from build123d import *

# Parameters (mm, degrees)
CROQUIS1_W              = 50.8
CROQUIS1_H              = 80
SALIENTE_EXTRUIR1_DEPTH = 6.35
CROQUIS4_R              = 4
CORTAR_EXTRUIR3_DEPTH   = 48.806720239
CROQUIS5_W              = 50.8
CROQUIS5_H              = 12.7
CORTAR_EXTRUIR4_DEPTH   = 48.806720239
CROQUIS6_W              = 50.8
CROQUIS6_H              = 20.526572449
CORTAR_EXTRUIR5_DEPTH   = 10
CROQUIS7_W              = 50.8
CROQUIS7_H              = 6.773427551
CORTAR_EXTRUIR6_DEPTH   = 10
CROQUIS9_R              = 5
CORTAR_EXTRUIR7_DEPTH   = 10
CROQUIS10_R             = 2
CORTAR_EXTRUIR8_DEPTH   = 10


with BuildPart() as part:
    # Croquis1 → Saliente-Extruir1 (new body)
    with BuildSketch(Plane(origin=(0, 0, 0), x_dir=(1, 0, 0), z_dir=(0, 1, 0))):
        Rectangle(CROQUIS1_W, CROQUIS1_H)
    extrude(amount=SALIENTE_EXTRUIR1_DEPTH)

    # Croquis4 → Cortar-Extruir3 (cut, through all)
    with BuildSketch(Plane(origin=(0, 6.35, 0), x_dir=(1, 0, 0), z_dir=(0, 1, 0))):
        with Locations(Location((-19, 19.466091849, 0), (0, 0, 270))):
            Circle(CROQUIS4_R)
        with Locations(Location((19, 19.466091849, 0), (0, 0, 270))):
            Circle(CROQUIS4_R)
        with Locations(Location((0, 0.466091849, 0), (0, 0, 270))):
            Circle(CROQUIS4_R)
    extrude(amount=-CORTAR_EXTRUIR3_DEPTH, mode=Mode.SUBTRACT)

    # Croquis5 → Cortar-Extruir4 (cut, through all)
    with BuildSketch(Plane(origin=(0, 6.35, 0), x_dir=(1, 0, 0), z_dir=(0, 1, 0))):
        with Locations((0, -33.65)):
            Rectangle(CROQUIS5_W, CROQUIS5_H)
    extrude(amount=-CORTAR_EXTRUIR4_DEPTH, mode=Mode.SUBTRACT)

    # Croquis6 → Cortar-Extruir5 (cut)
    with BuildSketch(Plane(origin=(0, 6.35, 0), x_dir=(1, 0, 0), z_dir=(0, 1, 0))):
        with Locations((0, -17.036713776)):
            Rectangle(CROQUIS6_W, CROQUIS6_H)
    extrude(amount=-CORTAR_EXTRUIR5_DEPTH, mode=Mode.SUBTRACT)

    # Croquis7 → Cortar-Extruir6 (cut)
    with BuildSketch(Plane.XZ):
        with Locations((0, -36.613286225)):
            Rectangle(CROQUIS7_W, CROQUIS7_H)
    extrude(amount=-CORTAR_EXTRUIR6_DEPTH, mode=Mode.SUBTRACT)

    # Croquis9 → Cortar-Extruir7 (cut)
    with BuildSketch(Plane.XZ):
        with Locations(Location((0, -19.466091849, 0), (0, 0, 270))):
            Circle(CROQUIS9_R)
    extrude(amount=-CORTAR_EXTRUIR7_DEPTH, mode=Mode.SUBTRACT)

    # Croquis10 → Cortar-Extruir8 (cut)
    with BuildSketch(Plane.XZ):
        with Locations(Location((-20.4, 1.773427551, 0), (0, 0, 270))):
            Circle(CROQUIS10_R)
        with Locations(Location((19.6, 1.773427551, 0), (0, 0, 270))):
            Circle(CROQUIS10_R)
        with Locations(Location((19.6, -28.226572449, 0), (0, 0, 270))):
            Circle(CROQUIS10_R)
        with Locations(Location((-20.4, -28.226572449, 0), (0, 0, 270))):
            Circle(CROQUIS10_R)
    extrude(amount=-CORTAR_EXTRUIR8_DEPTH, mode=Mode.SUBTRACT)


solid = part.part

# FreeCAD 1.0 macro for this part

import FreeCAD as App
import Part
import Sketcher
Q = App.Units.Quantity

doc = App.newDocument("Part")
body = doc.addObject("PartDesign::Body", "Body")

# Sketch on XZ plane
sketch1 = doc.addObject("Sketcher::SketchObject", "Sketch")
body.addObject(sketch1)
sketch1.AttachmentSupport = (doc.XZ_Plane, [""])
sketch1.MapMode = "FlatFace"
sketch1.addGeometry(Part.LineSegment(App.Vector(-25, -40, 0), App.Vector(-25, 40, 0)), False)
sketch1.addGeometry(Part.LineSegment(App.Vector(-25, 40, 0), App.Vector(25, 40, 0)), False)
sketch1.addGeometry(Part.LineSegment(App.Vector(25, 40, 0), App.Vector(25, -40, 0)), False)
sketch1.addGeometry(Part.LineSegment(App.Vector(25, -40, 0), App.Vector(-25, -40, 0)), False)
sketch1.addConstraint(Sketcher.Constraint("Coincident", 0, 2, 1, 1))
sketch1.addConstraint(Sketcher.Constraint("Coincident", 1, 2, 2, 1))
sketch1.addConstraint(Sketcher.Constraint("Coincident", 2, 2, 3, 1))
sketch1.addConstraint(Sketcher.Constraint("Coincident", 3, 2, 0, 1))
sketch1.addConstraint(Sketcher.Constraint("Vertical", 0))
sketch1.addConstraint(Sketcher.Constraint("Horizontal", 1))
sketch1.addConstraint(Sketcher.Constraint("Vertical", 2))
sketch1.addConstraint(Sketcher.Constraint("Horizontal", 3))
sketch1.addConstraint(Sketcher.Constraint("Symmetric", 0, 2, 2, 2, -1, 1))
sketch1.addConstraint(Sketcher.Constraint("DistanceY", 0, 1, 0, 2, Q("80 mm")))
sketch1.addConstraint(Sketcher.Constraint("DistanceX", 1, 1, 1, 2, Q("50.8 mm")))
pad1 = doc.addObject("PartDesign::Pad", "Pad")
body.addObject(pad1)
pad1.Profile = sketch1
pad1.Length = 6.35
pad1.Reversed = True

# Sketch on XZ plane
sketch2 = doc.addObject("Sketcher::SketchObject", "Sketch001")
body.addObject(sketch2)
sketch2.AttachmentSupport = (doc.XZ_Plane, [""])
sketch2.MapMode = "FlatFace"
sketch2.AttachmentOffset = App.Placement(App.Vector(0, 0, -6.35), App.Rotation())
sketch2.addGeometry(Part.Circle(App.Vector(-19, -19.5, 0), App.Vector(0, 0, 1), 4), False)
sketch2.addGeometry(Part.Circle(App.Vector(19, -19.5, 0), App.Vector(0, 0, 1), 4), False)
sketch2.addGeometry(Part.Circle(App.Vector(0, -0.5, 0), App.Vector(0, 0, 1), 4), False)
sketch2.addConstraint(Sketcher.Constraint("Equal", 0, 1))
sketch2.addConstraint(Sketcher.Constraint("Equal", 1, 2))
sketch2.addConstraint(Sketcher.Constraint("Symmetric", 0, 3, 1, 3, -2))
sketch2.addConstraint(Sketcher.Constraint("PointOnObject", 2, 3, -2))
sketch2.addConstraint(Sketcher.Constraint("Diameter", 0, Q("8 mm")))
sketch2.addConstraint(Sketcher.Constraint("DistanceX", 0, 3, -1, 1, Q("19 mm")))
sketch2.addConstraint(Sketcher.Constraint("DistanceY", 0, 3, 2, 3, Q("19 mm")))
sketch2.addConstraint(Sketcher.Constraint("DistanceY", 0, 3, -1, 1, Q("19.466092 mm")))
pocket1 = doc.addObject("PartDesign::Pocket", "Pocket")
body.addObject(pocket1)
pocket1.Profile = sketch2
pocket1.Type = "ThroughAll"
pocket1.Reversed = True

# Sketch on XZ plane
sketch3 = doc.addObject("Sketcher::SketchObject", "Sketch002")
body.addObject(sketch3)
sketch3.AttachmentSupport = (doc.XZ_Plane, [""])
sketch3.MapMode = "FlatFace"
sketch3.AttachmentOffset = App.Placement(App.Vector(0, 0, -6.35), App.Rotation())
sketch3.addGeometry(Part.LineSegment(App.Vector(-25, 27, 0), App.Vector(-25, 40, 0)), False)
sketch3.addGeometry(Part.LineSegment(App.Vector(-25, 40, 0), App.Vector(25, 40, 0)), False)
sketch3.addGeometry(Part.LineSegment(App.Vector(25, 40, 0), App.Vector(25, 27, 0)), False)
sketch3.addGeometry(Part.LineSegment(App.Vector(25, 27, 0), App.Vector(-25, 27, 0)), False)
sketch3.addConstraint(Sketcher.Constraint("Coincident", 0, 2, 1, 1))
sketch3.addConstraint(Sketcher.Constraint("Coincident", 1, 2, 2, 1))
sketch3.addConstraint(Sketcher.Constraint("Coincident", 2, 2, 3, 1))
sketch3.addConstraint(Sketcher.Constraint("Coincident", 3, 2, 0, 1))
sketch3.addConstraint(Sketcher.Constraint("Vertical", 0))
sketch3.addConstraint(Sketcher.Constraint("Horizontal", 1))
sketch3.addConstraint(Sketcher.Constraint("Vertical", 2))
sketch3.addConstraint(Sketcher.Constraint("Horizontal", 3))
sketch3.addConstraint(Sketcher.Constraint("DistanceX", 1, 1, 1, 2, Q("50.8 mm")))
sketch3.addConstraint(Sketcher.Constraint("DistanceY", 0, 1, 0, 2, Q("12.7 mm")))
sketch3.addConstraint(Sketcher.Constraint("DistanceY", -1, 1, 0, 2, Q("40 mm")))
sketch3.addConstraint(Sketcher.Constraint("DistanceX", 0, 2, -1, 1, Q("25.4 mm")))
pocket2 = doc.addObject("PartDesign::Pocket", "Pocket001")
body.addObject(pocket2)
pocket2.Profile = sketch3
pocket2.Type = "ThroughAll"
pocket2.Reversed = True

# Sketch on XZ plane
sketch4 = doc.addObject("Sketcher::SketchObject", "Sketch003")
body.addObject(sketch4)
sketch4.AttachmentSupport = (doc.XZ_Plane, [""])
sketch4.MapMode = "FlatFace"
sketch4.AttachmentOffset = App.Placement(App.Vector(0, 0, -6.35), App.Rotation())
sketch4.addGeometry(Part.LineSegment(App.Vector(-25, 7, 0), App.Vector(-25, 27, 0)), False)
sketch4.addGeometry(Part.LineSegment(App.Vector(-25, 27, 0), App.Vector(25, 27, 0)), False)
sketch4.addGeometry(Part.LineSegment(App.Vector(25, 27, 0), App.Vector(25, 7, 0)), False)
sketch4.addGeometry(Part.LineSegment(App.Vector(25, 7, 0), App.Vector(-25, 7, 0)), False)
sketch4.addConstraint(Sketcher.Constraint("Coincident", 0, 2, 1, 1))
sketch4.addConstraint(Sketcher.Constraint("Coincident", 1, 2, 2, 1))
sketch4.addConstraint(Sketcher.Constraint("Coincident", 2, 2, 3, 1))
sketch4.addConstraint(Sketcher.Constraint("Coincident", 3, 2, 0, 1))
sketch4.addConstraint(Sketcher.Constraint("Vertical", 0))
sketch4.addConstraint(Sketcher.Constraint("Horizontal", 1))
sketch4.addConstraint(Sketcher.Constraint("Vertical", 2))
sketch4.addConstraint(Sketcher.Constraint("Horizontal", 3))
sketch4.addConstraint(Sketcher.Constraint("DistanceX", 1, 1, 1, 2, Q("50.8 mm")))
sketch4.addConstraint(Sketcher.Constraint("DistanceX", 0, 2, -1, 1, Q("25.4 mm")))
sketch4.addConstraint(Sketcher.Constraint("DistanceY", -1, 1, 0, 2, Q("27.3 mm")))
sketch4.addConstraint(Sketcher.Constraint("DistanceY", 0, 1, 0, 2, Q("20.526572 mm")))
pocket3 = doc.addObject("PartDesign::Pocket", "Pocket002")
body.addObject(pocket3)
pocket3.Profile = sketch4
pocket3.Length = 10
pocket3.Reversed = True

# Sketch on XZ plane
sketch5 = doc.addObject("Sketcher::SketchObject", "Sketch004")
body.addObject(sketch5)
sketch5.AttachmentSupport = (doc.XZ_Plane, [""])
sketch5.MapMode = "FlatFace"
sketch5.addGeometry(Part.LineSegment(App.Vector(-25, -33, 0), App.Vector(-25, -40, 0)), False)
sketch5.addGeometry(Part.LineSegment(App.Vector(-25, -40, 0), App.Vector(25, -40, 0)), False)
sketch5.addGeometry(Part.LineSegment(App.Vector(25, -40, 0), App.Vector(25, -33, 0)), False)
sketch5.addGeometry(Part.LineSegment(App.Vector(25, -33, 0), App.Vector(-25, -33, 0)), False)
sketch5.addConstraint(Sketcher.Constraint("Coincident", 0, 2, 1, 1))
sketch5.addConstraint(Sketcher.Constraint("Coincident", 1, 2, 2, 1))
sketch5.addConstraint(Sketcher.Constraint("Coincident", 2, 2, 3, 1))
sketch5.addConstraint(Sketcher.Constraint("Coincident", 3, 2, 0, 1))
sketch5.addConstraint(Sketcher.Constraint("Vertical", 0))
sketch5.addConstraint(Sketcher.Constraint("Horizontal", 1))
sketch5.addConstraint(Sketcher.Constraint("Vertical", 2))
sketch5.addConstraint(Sketcher.Constraint("Horizontal", 3))
sketch5.addConstraint(Sketcher.Constraint("DistanceX", 1, 1, 1, 2, Q("50.8 mm")))
sketch5.addConstraint(Sketcher.Constraint("DistanceY", 0, 2, -1, 1, Q("40 mm")))
sketch5.addConstraint(Sketcher.Constraint("DistanceX", 0, 2, -1, 1, Q("25.4 mm")))
sketch5.addConstraint(Sketcher.Constraint("DistanceY", 0, 2, 0, 1, Q("6.773428 mm")))
pocket4 = doc.addObject("PartDesign::Pocket", "Pocket003")
body.addObject(pocket4)
pocket4.Profile = sketch5
pocket4.Length = 10

# Sketch on XZ plane
sketch6 = doc.addObject("Sketcher::SketchObject", "Sketch005")
body.addObject(sketch6)
sketch6.AttachmentSupport = (doc.XZ_Plane, [""])
sketch6.MapMode = "FlatFace"
sketch6.addGeometry(Part.Circle(App.Vector(0, -19, 0), App.Vector(0, 0, 1), 5), False)
sketch6.addConstraint(Sketcher.Constraint("PointOnObject", 0, 3, -2))
sketch6.addConstraint(Sketcher.Constraint("Diameter", 0, Q("10 mm")))
sketch6.addConstraint(Sketcher.Constraint("DistanceY", 0, 3, -1, 1, Q("19.466092 mm")))
pocket5 = doc.addObject("PartDesign::Pocket", "Pocket004")
body.addObject(pocket5)
pocket5.Profile = sketch6
pocket5.Length = 10

# Sketch on XZ plane
sketch7 = doc.addObject("Sketcher::SketchObject", "Sketch006")
body.addObject(sketch7)
sketch7.AttachmentSupport = (doc.XZ_Plane, [""])
sketch7.MapMode = "FlatFace"
sketch7.addGeometry(Part.Circle(App.Vector(-20.4, 1.8, 0), App.Vector(0, 0, 1), 2), False)
sketch7.addGeometry(Part.Circle(App.Vector(19.6, 1.8, 0), App.Vector(0, 0, 1), 2), False)
sketch7.addGeometry(Part.Circle(App.Vector(19.6, -28.2, 0), App.Vector(0, 0, 1), 2), False)
sketch7.addGeometry(Part.Circle(App.Vector(-20.4, -28.2, 0), App.Vector(0, 0, 1), 2), False)
sketch7.addConstraint(Sketcher.Constraint("Equal", 0, 1))
sketch7.addConstraint(Sketcher.Constraint("Equal", 1, 2))
sketch7.addConstraint(Sketcher.Constraint("Equal", 2, 3))
sketch7.addConstraint(Sketcher.Constraint("Horizontal", 0, 3, 1, 3))
sketch7.addConstraint(Sketcher.Constraint("Horizontal", 2, 3, 3, 3))
sketch7.addConstraint(Sketcher.Constraint("Vertical", 1, 3, 2, 3))
sketch7.addConstraint(Sketcher.Constraint("Vertical", 0, 3, 3, 3))
sketch7.addConstraint(Sketcher.Constraint("Diameter", 0, Q("4 mm")))
sketch7.addConstraint(Sketcher.Constraint("DistanceX", 0, 3, 1, 3, Q("40 mm")))
sketch7.addConstraint(Sketcher.Constraint("DistanceY", 2, 3, 1, 3, Q("30 mm")))
sketch7.addConstraint(Sketcher.Constraint("DistanceX", 0, 3, -1, 1, Q("20.4 mm")))
sketch7.addConstraint(Sketcher.Constraint("DistanceY", -1, 1, 0, 3, Q("1.773428 mm")))
pocket6 = doc.addObject("PartDesign::Pocket", "Pocket005")
body.addObject(pocket6)
pocket6.Profile = sketch7
pocket6.Length = 10

doc.recompute()
